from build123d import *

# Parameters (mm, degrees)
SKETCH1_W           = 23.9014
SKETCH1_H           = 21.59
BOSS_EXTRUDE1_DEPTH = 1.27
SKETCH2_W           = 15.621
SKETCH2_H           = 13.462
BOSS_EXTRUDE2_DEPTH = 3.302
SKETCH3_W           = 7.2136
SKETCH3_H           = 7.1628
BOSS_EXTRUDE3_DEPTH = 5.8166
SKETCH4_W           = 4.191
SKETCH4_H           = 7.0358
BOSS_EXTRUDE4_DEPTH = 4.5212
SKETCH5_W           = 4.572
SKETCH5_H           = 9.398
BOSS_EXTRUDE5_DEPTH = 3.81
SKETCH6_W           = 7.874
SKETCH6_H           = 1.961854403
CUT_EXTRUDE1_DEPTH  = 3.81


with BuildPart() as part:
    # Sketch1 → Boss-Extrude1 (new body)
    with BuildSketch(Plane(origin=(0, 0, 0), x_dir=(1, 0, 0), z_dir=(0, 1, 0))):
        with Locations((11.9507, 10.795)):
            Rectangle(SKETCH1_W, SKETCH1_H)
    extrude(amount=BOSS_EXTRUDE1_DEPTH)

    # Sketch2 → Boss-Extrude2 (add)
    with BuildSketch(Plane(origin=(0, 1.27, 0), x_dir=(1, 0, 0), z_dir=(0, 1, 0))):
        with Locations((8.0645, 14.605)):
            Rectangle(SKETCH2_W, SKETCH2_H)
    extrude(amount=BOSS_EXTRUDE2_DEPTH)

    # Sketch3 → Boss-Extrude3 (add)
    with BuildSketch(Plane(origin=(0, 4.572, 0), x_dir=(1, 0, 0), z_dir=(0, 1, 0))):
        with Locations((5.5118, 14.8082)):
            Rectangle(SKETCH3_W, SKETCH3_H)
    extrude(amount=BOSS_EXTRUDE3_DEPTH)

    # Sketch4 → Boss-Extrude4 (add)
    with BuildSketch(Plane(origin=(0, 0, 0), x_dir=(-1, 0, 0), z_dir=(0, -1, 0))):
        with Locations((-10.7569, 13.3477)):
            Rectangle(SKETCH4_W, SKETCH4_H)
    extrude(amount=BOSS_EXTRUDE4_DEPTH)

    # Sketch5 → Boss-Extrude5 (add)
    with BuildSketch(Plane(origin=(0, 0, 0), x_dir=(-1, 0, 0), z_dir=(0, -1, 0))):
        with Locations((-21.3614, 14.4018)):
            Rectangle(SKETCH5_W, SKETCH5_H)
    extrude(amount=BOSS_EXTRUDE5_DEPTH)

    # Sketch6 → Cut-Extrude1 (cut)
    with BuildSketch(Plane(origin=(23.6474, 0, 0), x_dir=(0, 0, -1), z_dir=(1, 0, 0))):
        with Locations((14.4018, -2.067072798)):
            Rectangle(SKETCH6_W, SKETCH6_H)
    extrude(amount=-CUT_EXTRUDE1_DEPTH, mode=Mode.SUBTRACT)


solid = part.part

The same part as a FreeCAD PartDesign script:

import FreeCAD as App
import Part
import Sketcher

V = App.Vector
Q = App.Units.Quantity


def add_polygon(sketch, points):
    """Adds a closed chain of lines whose ends are joined by coincident constraints."""
    first, n = sketch.GeometryCount, len(points)
    for a, b in zip(points, points[1:] + points[:1]):
        sketch.addGeometry(Part.LineSegment(App.Vector(*a, 0), App.Vector(*b, 0)), False)
    for i in range(n):
        sketch.addConstraint(Sketcher.Constraint("Coincident", first + i, 2, first + (i + 1) % n, 1))

doc = App.newDocument("Part")
body = doc.addObject("PartDesign::Body", "Body")

# Sketch on XZ plane
sketch1 = body.newObject("Sketcher::SketchObject", "Sketch")
sketch1.AttachmentSupport = (doc.getObject("XZ_Plane"), [""])
sketch1.MapMode = "FlatFace"
add_polygon(sketch1, [(0, -21.59), (0, 0), (23.9014, 0), (23.9014, -21.59)])  # lines 0-3
sketch1.addConstraint([
    Sketcher.Constraint("Vertical", 0),
    Sketcher.Constraint("Horizontal", 1),
    Sketcher.Constraint("Vertical", 2),
    Sketcher.Constraint("Horizontal", 3),
    Sketcher.Constraint("Coincident", 0, 2, -1, 1),
    Sketcher.Constraint("DistanceY", 0, 1, 0, 2, Q("0.85 in")),
    Sketcher.Constraint("DistanceX", 1, 1, 1, 2, Q("0.941 in")),
])
pad1 = body.newObject("PartDesign::Pad", "Pad")
pad1.Profile = sketch1
pad1.Length = Q("0.05 in")
pad1.Reversed = True

# Sketch on XZ plane
sketch2 = body.newObject("Sketcher::SketchObject", "Sketch001")
sketch2.AttachmentSupport = (doc.getObject("XZ_Plane"), [""])
sketch2.MapMode = "FlatFace"
sketch2.AttachmentOffset = App.Placement(V(0, 0, -0.05 * 25.4), App.Rotation())
add_polygon(sketch2, [(0.254, -21.336), (0.254, -7.874), (15.875, -7.874), (15.875, -21.336)])  # lines 0-3
sketch2.addConstraint([
    Sketcher.Constraint("Vertical", 0),
    Sketcher.Constraint("Horizontal", 1),
    Sketcher.Constraint("Vertical", 2),
    Sketcher.Constraint("Horizontal", 3),
    Sketcher.Constraint("DistanceY", 0, 1, 0, 2, Q("0.53 in")),
    Sketcher.Constraint("DistanceX", 1, 1, 1, 2, Q("0.615 in")),
    Sketcher.Constraint("DistanceX", -1, 1, 0, 2, Q("0.01 in")),
    Sketcher.Constraint("DistanceY", 0, 2, -1, 1, Q("0.31 in")),
])
pad2 = body.newObject("PartDesign::Pad", "Pad001")
pad2.Profile = sketch2
pad2.Length = Q("0.13 in")
pad2.Reversed = True

# Sketch on XZ plane
sketch3 = body.newObject("Sketcher::SketchObject", "Sketch002")
sketch3.AttachmentSupport = (doc.getObject("XZ_Plane"), [""])
sketch3.MapMode = "FlatFace"
sketch3.AttachmentOffset = App.Placement(V(0, 0, -0.18 * 25.4), App.Rotation())
add_polygon(sketch3, [(1.905, -18.3896), (1.905, -11.2268), (9.1186, -11.2268), (9.1186, -18.3896)])  # lines 0-3
sketch3.addConstraint([
    Sketcher.Constraint("Vertical", 0),
    Sketcher.Constraint("Horizontal", 1),
    Sketcher.Constraint("Vertical", 2),
    Sketcher.Constraint("Horizontal", 3),
    Sketcher.Constraint("DistanceX", 1, 1, 1, 2, Q("0.284 in")),
    Sketcher.Constraint("DistanceY", 0, 1, 0, 2, Q("0.282 in")),
    Sketcher.Constraint("DistanceX", -1, 1, 0, 2, Q("0.075 in")),
    Sketcher.Constraint("DistanceY", 0, 2, -1, 1, Q("0.442 in")),
])
pad3 = body.newObject("PartDesign::Pad", "Pad002")
pad3.Profile = sketch3
pad3.Length = Q("0.229 in")
pad3.Reversed = True

# Sketch on XZ plane
sketch4 = body.newObject("Sketcher::SketchObject", "Sketch003")
sketch4.AttachmentSupport = (doc.getObject("XZ_Plane"), [""])
sketch4.MapMode = "FlatFace"
add_polygon(sketch4, [(12.8524, -16.8656), (12.8524, -9.8298), (8.6614, -9.8298), (8.6614, -16.8656)])  # lines 0-3
sketch4.addConstraint([
    Sketcher.Constraint("Vertical", 0),
    Sketcher.Constraint("Horizontal", 1),
    Sketcher.Constraint("Vertical", 2),
    Sketcher.Constraint("Horizontal", 3),
    Sketcher.Constraint("DistanceX", 1, 2, 1, 1, Q("0.165 in")),
    Sketcher.Constraint("DistanceY", 0, 1, 0, 2, Q("0.277 in")),
    Sketcher.Constraint("DistanceX", -1, 1, 0, 2, Q("0.506 in")),
    Sketcher.Constraint("DistanceY", 0, 2, -1, 1, Q("0.387 in")),
])
pad4 = body.newObject("PartDesign::Pad", "Pad003")
pad4.Profile = sketch4
pad4.Length = Q("0.178 in")

# Sketch on XZ plane
sketch5 = body.newObject("Sketcher::SketchObject", "Sketch004")
sketch5.AttachmentSupport = (doc.getObject("XZ_Plane"), [""])
sketch5.MapMode = "FlatFace"
add_polygon(sketch5, [(23.6474, -19.1008), (23.6474, -9.7028), (19.0754, -9.7028), (19.0754, -19.1008)])  # lines 0-3
sketch5.addConstraint([
    Sketcher.Constraint("Vertical", 0),
    Sketcher.Constraint("Horizontal", 1),
    Sketcher.Constraint("Vertical", 2),
    Sketcher.Constraint("Horizontal", 3),
    Sketcher.Constraint("DistanceX", 1, 2, 1, 1, Q("0.18 in")),
    Sketcher.Constraint("DistanceY", 0, 1, 0, 2, Q("0.37 in")),
    Sketcher.Constraint("DistanceX", -1, 1, 0, 2, Q("0.931 in")),
    Sketcher.Constraint("DistanceY", 0, 2, -1, 1, Q("0.382 in")),
])
pad5 = body.newObject("PartDesign::Pad", "Pad004")
pad5.Profile = sketch5
pad5.Length = Q("0.15 in")

# Sketch on YZ plane
sketch6 = body.newObject("Sketcher::SketchObject", "Sketch005")
sketch6.AttachmentSupport = (doc.getObject("YZ_Plane"), [""])
sketch6.MapMode = "FlatFace"
sketch6.AttachmentOffset = App.Placement(V(0, 0, 0.931 * 25.4), App.Rotation())
add_polygon(sketch6, [(-1.086146, -10.4648), (-3.048, -10.4648), (-3.048, -18.3388), (-1.086146, -18.3388)])  # lines 0-3
sketch6.addConstraint([
    Sketcher.Constraint("Horizontal", 0),
    Sketcher.Constraint("Vertical", 1),
    Sketcher.Constraint("Horizontal", 2),
    Sketcher.Constraint("Vertical", 3),
    Sketcher.Constraint("DistanceY", 1, 2, 1, 1, Q("0.31 in")),
    Sketcher.Constraint("DistanceX", 0, 2, -1, 1, Q("0.12 in")),
    Sketcher.Constraint("DistanceY", 0, 2, -1, 1, Q("0.412 in")),
    Sketcher.Constraint("DistanceX", 0, 2, 0, 1, Q("1.961854 mm")),
])
pocket1 = body.newObject("PartDesign::Pocket", "Pocket")
pocket1.Profile = sketch6
pocket1.Length = Q("0.15 in")

doc.recompute()
